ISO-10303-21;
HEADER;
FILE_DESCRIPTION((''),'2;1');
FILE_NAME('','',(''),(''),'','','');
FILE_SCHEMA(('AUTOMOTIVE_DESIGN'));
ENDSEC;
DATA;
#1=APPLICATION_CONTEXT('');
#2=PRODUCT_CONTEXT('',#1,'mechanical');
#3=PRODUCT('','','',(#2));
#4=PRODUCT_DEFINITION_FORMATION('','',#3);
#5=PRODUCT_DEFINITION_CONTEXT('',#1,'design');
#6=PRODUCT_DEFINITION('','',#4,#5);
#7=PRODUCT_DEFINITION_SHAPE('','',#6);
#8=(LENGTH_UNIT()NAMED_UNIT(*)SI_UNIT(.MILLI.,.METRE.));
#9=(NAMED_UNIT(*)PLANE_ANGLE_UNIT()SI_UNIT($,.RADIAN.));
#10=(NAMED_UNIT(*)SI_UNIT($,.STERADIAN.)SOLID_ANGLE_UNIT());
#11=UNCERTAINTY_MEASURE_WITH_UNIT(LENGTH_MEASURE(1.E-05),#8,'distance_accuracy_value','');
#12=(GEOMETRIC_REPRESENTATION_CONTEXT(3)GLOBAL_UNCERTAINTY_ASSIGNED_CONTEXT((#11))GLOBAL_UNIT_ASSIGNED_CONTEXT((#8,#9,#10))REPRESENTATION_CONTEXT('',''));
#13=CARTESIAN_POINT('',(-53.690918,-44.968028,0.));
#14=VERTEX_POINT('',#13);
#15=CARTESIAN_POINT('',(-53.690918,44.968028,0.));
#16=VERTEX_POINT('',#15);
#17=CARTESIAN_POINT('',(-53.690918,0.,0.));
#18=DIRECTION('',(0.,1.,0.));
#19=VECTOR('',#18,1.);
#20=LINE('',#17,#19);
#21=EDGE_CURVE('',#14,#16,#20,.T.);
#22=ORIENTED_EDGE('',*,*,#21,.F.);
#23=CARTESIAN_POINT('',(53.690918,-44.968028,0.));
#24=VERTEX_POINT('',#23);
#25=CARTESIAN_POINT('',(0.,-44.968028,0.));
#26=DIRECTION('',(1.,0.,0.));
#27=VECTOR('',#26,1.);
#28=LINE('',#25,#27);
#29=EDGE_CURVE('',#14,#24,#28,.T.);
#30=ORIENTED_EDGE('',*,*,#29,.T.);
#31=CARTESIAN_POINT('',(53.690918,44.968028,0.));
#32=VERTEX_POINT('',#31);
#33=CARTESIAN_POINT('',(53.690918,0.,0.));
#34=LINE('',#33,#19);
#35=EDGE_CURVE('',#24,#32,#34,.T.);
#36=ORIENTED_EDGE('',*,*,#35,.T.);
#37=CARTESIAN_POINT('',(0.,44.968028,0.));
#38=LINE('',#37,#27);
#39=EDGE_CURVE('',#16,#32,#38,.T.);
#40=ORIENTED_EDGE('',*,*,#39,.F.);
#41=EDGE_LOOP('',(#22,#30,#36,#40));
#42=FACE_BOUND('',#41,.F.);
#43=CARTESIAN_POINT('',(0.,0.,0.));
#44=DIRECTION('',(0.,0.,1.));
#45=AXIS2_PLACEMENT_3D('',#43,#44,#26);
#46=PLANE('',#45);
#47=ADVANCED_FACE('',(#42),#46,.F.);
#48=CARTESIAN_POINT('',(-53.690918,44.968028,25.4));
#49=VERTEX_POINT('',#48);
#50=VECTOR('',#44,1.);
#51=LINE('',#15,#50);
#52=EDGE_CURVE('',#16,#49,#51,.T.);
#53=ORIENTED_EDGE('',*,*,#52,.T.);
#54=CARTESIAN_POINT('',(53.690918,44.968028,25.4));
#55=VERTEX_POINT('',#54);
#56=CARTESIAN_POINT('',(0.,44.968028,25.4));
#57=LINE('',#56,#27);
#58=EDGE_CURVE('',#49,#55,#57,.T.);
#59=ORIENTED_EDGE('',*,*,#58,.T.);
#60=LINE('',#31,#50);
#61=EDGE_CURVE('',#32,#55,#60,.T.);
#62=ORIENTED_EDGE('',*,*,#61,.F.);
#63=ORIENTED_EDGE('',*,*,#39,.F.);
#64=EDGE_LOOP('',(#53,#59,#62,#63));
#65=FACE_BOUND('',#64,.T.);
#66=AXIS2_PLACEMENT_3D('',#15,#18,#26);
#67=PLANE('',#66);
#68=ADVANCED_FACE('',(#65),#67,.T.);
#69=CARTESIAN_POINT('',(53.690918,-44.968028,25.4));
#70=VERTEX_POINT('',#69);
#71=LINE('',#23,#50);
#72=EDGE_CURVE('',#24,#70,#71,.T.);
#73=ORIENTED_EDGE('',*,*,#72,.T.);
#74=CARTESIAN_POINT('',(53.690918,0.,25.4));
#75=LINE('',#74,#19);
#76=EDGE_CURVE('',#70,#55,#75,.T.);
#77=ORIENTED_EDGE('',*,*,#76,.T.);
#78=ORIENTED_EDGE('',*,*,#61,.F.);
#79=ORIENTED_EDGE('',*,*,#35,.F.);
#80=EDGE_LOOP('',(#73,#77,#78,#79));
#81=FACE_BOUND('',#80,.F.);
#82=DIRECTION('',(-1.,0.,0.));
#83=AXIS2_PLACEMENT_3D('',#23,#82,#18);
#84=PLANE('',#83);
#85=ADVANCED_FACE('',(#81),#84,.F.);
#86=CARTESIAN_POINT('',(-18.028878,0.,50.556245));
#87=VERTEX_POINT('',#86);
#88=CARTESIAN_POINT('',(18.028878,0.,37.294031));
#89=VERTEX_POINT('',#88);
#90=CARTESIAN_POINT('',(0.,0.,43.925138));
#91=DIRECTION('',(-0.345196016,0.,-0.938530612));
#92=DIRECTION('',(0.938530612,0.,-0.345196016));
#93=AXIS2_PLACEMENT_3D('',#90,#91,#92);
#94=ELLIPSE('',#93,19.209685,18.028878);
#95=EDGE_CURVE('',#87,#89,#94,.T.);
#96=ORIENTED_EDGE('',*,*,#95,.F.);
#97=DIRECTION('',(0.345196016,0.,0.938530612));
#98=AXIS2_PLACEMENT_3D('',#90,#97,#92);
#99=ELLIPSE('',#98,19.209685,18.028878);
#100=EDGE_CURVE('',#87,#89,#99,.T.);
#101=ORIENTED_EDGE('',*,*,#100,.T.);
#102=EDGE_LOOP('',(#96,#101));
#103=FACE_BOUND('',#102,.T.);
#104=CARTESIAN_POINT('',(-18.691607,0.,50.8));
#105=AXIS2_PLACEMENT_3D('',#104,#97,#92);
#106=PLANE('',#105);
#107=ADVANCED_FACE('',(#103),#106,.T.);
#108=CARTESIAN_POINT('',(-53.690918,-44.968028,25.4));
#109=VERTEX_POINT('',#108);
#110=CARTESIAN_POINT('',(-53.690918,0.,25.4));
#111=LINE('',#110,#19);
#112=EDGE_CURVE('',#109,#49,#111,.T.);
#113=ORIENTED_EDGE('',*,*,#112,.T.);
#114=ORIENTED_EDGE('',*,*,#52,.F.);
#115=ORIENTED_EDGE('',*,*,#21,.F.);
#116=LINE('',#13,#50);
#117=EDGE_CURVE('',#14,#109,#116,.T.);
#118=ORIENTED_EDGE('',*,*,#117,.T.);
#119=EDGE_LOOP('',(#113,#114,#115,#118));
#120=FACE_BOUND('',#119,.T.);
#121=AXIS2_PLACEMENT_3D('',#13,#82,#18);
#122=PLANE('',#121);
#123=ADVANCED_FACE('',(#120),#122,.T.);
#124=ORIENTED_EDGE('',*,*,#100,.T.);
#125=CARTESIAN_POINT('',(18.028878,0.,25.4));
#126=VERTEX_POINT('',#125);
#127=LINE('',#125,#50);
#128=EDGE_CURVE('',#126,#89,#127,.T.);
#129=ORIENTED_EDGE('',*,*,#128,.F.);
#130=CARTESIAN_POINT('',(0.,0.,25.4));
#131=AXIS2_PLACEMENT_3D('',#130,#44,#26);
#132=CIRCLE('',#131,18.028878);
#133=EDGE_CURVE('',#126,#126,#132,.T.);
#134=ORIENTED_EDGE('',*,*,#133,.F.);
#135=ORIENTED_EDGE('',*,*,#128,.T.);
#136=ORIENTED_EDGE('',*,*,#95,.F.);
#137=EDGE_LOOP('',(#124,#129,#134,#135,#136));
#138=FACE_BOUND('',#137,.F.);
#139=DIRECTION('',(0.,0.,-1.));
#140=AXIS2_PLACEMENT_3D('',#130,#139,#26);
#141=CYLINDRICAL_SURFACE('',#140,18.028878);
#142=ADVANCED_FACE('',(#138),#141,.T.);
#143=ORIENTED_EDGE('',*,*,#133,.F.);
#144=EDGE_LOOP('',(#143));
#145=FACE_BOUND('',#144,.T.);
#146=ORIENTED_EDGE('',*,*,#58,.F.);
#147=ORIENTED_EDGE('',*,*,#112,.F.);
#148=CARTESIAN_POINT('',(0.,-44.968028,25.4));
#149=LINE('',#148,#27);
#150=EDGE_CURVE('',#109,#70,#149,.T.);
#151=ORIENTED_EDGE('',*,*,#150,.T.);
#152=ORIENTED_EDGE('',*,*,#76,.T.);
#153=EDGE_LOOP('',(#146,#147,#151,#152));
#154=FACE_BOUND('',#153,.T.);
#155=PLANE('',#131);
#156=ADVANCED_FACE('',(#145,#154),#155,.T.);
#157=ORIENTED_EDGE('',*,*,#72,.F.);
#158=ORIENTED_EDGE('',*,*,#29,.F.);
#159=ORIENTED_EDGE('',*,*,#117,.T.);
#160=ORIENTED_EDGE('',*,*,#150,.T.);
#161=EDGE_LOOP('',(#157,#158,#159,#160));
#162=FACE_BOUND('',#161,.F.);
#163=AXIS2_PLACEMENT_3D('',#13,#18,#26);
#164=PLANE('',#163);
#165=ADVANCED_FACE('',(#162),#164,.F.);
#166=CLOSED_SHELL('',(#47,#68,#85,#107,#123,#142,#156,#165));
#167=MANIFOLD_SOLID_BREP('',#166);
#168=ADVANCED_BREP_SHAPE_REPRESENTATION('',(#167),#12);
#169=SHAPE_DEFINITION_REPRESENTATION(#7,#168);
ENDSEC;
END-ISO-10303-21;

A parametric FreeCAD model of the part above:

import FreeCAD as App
import Part
import Sketcher
Q = App.Units.Quantity

doc = App.newDocument("Part")
body = doc.addObject("PartDesign::Body", "Body")

sketch1 = body.newObject("Sketcher::SketchObject", "Sketch")
sketch1.AttachmentSupport = (doc.getObject("XY_Plane"), [""])
sketch1.MapMode = "FlatFace"
sketch1.addGeometry([
    Part.LineSegment(App.Vector(-54, 45, 0), App.Vector(-54, -45, 0)),
    Part.LineSegment(App.Vector(-54, -45, 0), App.Vector(54, -45, 0)),
    Part.LineSegment(App.Vector(54, -45, 0), App.Vector(54, 45, 0)),
    Part.LineSegment(App.Vector(54, 45, 0), App.Vector(-54, 45, 0)),
], False)
sketch1.addConstraint([
    Sketcher.Constraint("Coincident", 0, 2, 1, 1),
    Sketcher.Constraint("Coincident", 1, 2, 2, 1),
    Sketcher.Constraint("Coincident", 2, 2, 3, 1),
    Sketcher.Constraint("Coincident", 3, 2, 0, 1),
    Sketcher.Constraint("Vertical", 0),
    Sketcher.Constraint("Horizontal", 1),
    Sketcher.Constraint("Vertical", 2),
    Sketcher.Constraint("Horizontal", 3),
    Sketcher.Constraint("Symmetric", 0, 2, 2, 2, -1, 1),
    Sketcher.Constraint("DistanceX", 1, 1, 1, 2, 107.381836),
    Sketcher.Constraint("DistanceY", 0, 2, 0, 1, 89.936055),
])
pad1 = body.newObject("PartDesign::Pad", "Pad")
pad1.Profile = sketch1
pad1.Length = Q("1 in")

sketch2 = body.newObject("Sketcher::SketchObject", "Sketch001")
sketch2.AttachmentSupport = (doc.getObject("XY_Plane"), [""])
sketch2.MapMode = "FlatFace"
sketch2.AttachmentOffset = App.Placement(App.Vector(0, 0, 1 * 25.4), App.Rotation())
sketch2.addGeometry(Part.Circle(App.Vector(0, 0, 0), App.Vector(0, 0, 1), 18), False)
sketch2.addConstraint([
    Sketcher.Constraint("Coincident", 0, 3, -1, 1),
    Sketcher.Constraint("Diameter", 0, 36.057756),
])
pad2 = body.newObject("PartDesign::Pad", "Pad001")
pad2.Profile = sketch2
pad2.Length = Q("1 in")

sketch3 = body.newObject("Sketcher::SketchObject", "Sketch002")
sketch3.AttachmentSupport = (doc.getObject("XZ_Plane"), [""])
sketch3.MapMode = "FlatFace"
sketch3.addGeometry([
    Part.LineSegment(App.Vector(18, 51, 0), App.Vector(-19, 51, 0)),
    Part.LineSegment(App.Vector(-19, 51, 0), App.Vector(18, 37, 0)),
    Part.LineSegment(App.Vector(18, 37, 0), App.Vector(18, 51, 0)),
], False)
sketch3.addConstraint([
    Sketcher.Constraint("Coincident", 0, 2, 1, 1),
    Sketcher.Constraint("Coincident", 1, 2, 2, 1),
    Sketcher.Constraint("Coincident", 2, 2, 0, 1),
    Sketcher.Constraint("Horizontal", 0),
    Sketcher.Constraint("Vertical", 2),
    Sketcher.Constraint("DistanceY", -1, 1, 0, 2, Q("2 in")),
    Sketcher.Constraint("DistanceX", 0, 2, 0, 1, 36.97142),
    Sketcher.Constraint("DistanceY", 2, 1, 2, 2, 13.598264),
    Sketcher.Constraint("DistanceX", 0, 2, -1, 1, 18.691607),
])
pocket1 = body.newObject("PartDesign::Pocket", "Pocket")
pocket1.Profile = sketch3
pocket1.Type = "ThroughAll"
pocket1.Midplane = True

doc.recompute()
